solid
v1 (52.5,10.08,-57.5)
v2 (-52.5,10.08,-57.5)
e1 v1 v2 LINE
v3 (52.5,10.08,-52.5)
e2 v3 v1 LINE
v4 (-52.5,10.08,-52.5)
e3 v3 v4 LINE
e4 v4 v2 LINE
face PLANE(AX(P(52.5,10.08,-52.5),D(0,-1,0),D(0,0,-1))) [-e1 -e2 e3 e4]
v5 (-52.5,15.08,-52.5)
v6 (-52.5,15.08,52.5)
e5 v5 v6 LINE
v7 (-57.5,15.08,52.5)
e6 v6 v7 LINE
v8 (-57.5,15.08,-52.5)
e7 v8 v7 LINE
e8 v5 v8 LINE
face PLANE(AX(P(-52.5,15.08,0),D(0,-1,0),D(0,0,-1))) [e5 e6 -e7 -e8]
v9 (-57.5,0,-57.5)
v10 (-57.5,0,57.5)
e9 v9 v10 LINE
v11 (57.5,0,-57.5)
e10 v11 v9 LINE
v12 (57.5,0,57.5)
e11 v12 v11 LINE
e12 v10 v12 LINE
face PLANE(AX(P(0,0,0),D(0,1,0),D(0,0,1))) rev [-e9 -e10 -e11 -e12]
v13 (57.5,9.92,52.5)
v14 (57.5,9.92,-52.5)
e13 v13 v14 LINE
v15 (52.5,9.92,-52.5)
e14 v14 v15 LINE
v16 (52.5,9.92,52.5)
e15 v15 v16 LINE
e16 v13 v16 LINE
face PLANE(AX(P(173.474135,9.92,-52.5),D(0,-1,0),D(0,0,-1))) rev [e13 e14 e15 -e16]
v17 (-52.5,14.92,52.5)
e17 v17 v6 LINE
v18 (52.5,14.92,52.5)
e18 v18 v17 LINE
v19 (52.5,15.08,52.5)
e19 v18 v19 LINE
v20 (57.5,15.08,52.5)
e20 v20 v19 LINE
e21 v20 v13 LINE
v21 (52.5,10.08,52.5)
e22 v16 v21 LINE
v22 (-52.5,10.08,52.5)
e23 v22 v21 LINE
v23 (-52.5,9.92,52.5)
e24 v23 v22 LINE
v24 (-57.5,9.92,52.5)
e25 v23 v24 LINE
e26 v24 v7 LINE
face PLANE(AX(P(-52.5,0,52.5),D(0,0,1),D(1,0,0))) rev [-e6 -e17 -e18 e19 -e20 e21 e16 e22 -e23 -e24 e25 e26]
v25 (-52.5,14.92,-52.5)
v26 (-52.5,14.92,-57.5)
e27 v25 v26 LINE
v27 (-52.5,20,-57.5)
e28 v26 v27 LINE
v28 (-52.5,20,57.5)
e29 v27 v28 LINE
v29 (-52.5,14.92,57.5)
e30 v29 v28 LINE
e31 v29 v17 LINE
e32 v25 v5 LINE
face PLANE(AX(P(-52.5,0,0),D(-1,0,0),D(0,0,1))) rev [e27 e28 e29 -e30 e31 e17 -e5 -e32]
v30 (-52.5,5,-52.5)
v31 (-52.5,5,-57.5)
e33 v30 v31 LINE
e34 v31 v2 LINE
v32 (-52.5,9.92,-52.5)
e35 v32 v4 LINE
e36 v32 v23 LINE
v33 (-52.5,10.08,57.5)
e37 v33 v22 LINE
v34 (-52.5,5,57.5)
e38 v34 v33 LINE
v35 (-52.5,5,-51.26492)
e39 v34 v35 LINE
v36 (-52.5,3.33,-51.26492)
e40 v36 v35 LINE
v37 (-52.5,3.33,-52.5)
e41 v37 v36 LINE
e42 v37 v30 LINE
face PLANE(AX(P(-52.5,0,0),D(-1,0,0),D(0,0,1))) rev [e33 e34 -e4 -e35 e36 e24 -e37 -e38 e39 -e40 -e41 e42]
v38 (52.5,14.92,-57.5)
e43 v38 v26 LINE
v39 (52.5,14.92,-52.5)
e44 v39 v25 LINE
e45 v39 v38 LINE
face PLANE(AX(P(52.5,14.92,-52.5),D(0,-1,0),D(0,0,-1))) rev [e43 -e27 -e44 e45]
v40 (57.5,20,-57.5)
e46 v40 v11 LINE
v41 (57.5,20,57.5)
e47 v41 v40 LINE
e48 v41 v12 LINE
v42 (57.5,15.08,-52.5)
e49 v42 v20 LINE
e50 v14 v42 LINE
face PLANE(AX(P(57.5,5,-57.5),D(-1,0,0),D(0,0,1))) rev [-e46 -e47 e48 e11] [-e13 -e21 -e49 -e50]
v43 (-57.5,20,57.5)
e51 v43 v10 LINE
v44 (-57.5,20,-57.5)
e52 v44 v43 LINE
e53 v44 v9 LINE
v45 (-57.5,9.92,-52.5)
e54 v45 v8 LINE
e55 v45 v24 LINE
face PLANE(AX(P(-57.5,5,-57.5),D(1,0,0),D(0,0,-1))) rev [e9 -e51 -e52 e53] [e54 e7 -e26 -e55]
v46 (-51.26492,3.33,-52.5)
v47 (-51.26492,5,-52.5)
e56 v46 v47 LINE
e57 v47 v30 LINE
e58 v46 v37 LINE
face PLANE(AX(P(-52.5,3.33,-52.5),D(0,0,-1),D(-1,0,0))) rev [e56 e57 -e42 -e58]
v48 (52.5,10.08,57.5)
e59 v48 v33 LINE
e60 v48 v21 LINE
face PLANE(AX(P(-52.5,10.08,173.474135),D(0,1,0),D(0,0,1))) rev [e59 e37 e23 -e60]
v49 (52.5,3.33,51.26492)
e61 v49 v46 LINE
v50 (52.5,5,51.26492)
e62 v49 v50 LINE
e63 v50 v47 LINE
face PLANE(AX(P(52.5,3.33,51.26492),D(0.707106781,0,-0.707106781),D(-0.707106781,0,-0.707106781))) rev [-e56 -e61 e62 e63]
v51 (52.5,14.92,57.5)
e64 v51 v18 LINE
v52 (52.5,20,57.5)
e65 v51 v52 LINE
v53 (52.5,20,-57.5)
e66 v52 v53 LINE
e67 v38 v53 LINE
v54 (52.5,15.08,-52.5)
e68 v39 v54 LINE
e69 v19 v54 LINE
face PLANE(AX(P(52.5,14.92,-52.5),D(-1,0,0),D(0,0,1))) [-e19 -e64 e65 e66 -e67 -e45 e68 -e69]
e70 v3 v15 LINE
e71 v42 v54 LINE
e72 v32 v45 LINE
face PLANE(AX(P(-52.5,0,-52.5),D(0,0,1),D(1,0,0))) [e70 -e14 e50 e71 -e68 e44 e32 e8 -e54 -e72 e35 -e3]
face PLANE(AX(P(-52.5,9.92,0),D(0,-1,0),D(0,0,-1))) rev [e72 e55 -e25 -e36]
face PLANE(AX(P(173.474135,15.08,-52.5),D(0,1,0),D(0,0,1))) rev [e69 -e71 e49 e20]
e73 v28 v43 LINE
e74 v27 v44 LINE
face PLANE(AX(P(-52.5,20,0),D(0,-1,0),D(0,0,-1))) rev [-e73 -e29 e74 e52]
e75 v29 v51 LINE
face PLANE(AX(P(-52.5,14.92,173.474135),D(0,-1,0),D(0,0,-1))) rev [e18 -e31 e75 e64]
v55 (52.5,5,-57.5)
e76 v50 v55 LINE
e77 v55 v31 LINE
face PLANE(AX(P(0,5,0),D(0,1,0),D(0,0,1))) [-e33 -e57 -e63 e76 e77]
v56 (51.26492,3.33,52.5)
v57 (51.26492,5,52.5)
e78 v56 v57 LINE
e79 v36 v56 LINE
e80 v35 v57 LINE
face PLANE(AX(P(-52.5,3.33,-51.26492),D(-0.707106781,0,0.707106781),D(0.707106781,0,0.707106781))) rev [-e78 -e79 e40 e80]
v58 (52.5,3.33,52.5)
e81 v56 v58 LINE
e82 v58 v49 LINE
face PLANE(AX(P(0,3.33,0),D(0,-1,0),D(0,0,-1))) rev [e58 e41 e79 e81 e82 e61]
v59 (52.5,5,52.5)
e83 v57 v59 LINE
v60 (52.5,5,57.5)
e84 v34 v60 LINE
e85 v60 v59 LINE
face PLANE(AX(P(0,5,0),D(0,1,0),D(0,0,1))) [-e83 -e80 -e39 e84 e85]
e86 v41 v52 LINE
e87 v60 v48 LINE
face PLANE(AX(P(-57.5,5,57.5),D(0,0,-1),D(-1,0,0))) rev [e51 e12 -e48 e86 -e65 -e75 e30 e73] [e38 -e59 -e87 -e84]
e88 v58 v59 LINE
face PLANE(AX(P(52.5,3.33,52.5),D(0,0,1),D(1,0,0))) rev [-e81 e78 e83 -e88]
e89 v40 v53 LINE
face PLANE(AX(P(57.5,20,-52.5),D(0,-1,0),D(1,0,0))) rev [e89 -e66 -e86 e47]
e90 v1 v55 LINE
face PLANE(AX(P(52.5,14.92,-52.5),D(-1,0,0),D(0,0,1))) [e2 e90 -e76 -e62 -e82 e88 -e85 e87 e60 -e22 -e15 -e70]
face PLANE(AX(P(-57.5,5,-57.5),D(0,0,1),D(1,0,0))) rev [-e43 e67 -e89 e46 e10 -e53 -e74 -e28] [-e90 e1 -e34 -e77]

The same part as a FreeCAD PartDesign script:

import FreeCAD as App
import Part
import Sketcher
from FreeCAD import Vector
Q = App.Units.Quantity

doc = App.newDocument("Part")
params = doc.addObject("Spreadsheet::Sheet", "Params")
for row, (alias, value) in enumerate([
    ("sketch1_width", "115 mm"),
    ("pad1_length", "5 mm"),
    ("sketch2_width", "15 mm"),
    ("sketch2_height", "115 mm"),
    ("sketch2_height2", "105 mm"),
    ("sketch2_width2", "5.16 mm"),
    ("pad2_length", "5 mm"),
    ("sketch3_width", "5 mm"),
    ("sketch3_width2", "105 mm"),
    ("sketch3_height", "15 mm"),
    ("sketch3_height2", "5.08 mm"),
    ("pad3_length", "5 mm"),
    ("sketch4_width", "15 mm"),
    ("sketch4_height", "115 mm"),
    ("sketch4_height2", "105 mm"),
    ("sketch4_width2", "5.16 mm"),
    ("pad4_length", "5 mm"),
    ("sketch5_width", "5 mm"),
    ("sketch5_width2", "105 mm"),
    ("sketch5_height", "15 mm"),
    ("sketch5_height2", "5.08 mm"),
    ("pad5_length", "5 mm"),
    ("pocket1_length", "1.67 mm"),
], start=1):
    params.set(f"A{row}", alias)
    params.set(f"B{row}", "=" + value)
    params.setAlias(f"B{row}", alias)

body = doc.addObject("PartDesign::Body", "Body")

sketch1 = doc.addObject("Sketcher::SketchObject", "Sketch")
body.addObject(sketch1)
sketch1.AttachmentSupport = (doc.XZ_Plane, [""])
sketch1.MapMode = "FlatFace"
sketch1.addGeometry([
    Part.LineSegment(Vector(-58, -58, 0), Vector(-58, 58, 0)),
    Part.LineSegment(Vector(-58, 58, 0), Vector(58, 58, 0)),
    Part.LineSegment(Vector(58, 58, 0), Vector(58, -58, 0)),
    Part.LineSegment(Vector(58, -58, 0), Vector(-58, -58, 0)),
], False)
sketch1.addConstraint([
    Sketcher.Constraint("Coincident", 0, 2, 1, 1),
    Sketcher.Constraint("Coincident", 1, 2, 2, 1),
    Sketcher.Constraint("Coincident", 2, 2, 3, 1),
    Sketcher.Constraint("Coincident", 3, 2, 0, 1),
    Sketcher.Constraint("Vertical", 0),
    Sketcher.Constraint("Horizontal", 1),
    Sketcher.Constraint("Vertical", 2),
    Sketcher.Constraint("Horizontal", 3),
    Sketcher.Constraint("Symmetric", 0, 2, 2, 2, -1, 1),
    Sketcher.Constraint("Equal", 3, 0),
    Sketcher.Constraint("DistanceX", 1, 1, 1, 2, Q("115 mm")),
])
sketch1.setExpression("Constraints[10]", "Params.sketch1_width")
pad1 = doc.addObject("PartDesign::Pad", "Pad")
body.addObject(pad1)
pad1.Profile = sketch1
pad1.setExpression("Length", "Params.pad1_length")
pad1.Reversed = True

sketch2 = doc.addObject("Sketcher::SketchObject", "Sketch001")
body.addObject(sketch2)
sketch2.AttachmentSupport = (doc.YZ_Plane, [""])
sketch2.MapMode = "FlatFace"
sketch2.AttachmentOffset = App.Placement(Vector(0, 0, -57.5), App.Rotation())
sketch2.addGeometry([
    Part.LineSegment(Vector(20, -58, 0), Vector(5, -58, 0)),
    Part.LineSegment(Vector(5, -58, 0), Vector(5, 58, 0)),
    Part.LineSegment(Vector(5, 58, 0), Vector(20, 58, 0)),
    Part.LineSegment(Vector(20, 58, 0), Vector(20, -58, 0)),
    Part.LineSegment(Vector(10, 52, 0), Vector(10, -52, 0)),
    Part.LineSegment(Vector(10, -52, 0), Vector(15, -52, 0)),
    Part.LineSegment(Vector(15, -52, 0), Vector(15, 52, 0)),
    Part.LineSegment(Vector(15, 52, 0), Vector(10, 52, 0)),
], False)
sketch2.addConstraint([
    Sketcher.Constraint("Coincident", 0, 2, 1, 1),
    Sketcher.Constraint("Coincident", 1, 2, 2, 1),
    Sketcher.Constraint("Coincident", 2, 2, 3, 1),
    Sketcher.Constraint("Coincident", 3, 2, 0, 1),
    Sketcher.Constraint("Coincident", 4, 2, 5, 1),
    Sketcher.Constraint("Coincident", 5, 2, 6, 1),
    Sketcher.Constraint("Coincident", 6, 2, 7, 1),
    Sketcher.Constraint("Coincident", 7, 2, 4, 1),
    Sketcher.Constraint("Horizontal", 0),
    Sketcher.Constraint("Vertical", 1),
    Sketcher.Constraint("Horizontal", 2),
    Sketcher.Constraint("Vertical", 3),
    Sketcher.Constraint("Vertical", 4),
    Sketcher.Constraint("Horizontal", 5),
    Sketcher.Constraint("Vertical", 6),
    Sketcher.Constraint("Horizontal", 7),
    Sketcher.Constraint("DistanceX", 0, 2, 0, 1, Q("15 mm")),
    Sketcher.Constraint("DistanceY", 1, 1, 1, 2, Q("115 mm")),
    Sketcher.Constraint("DistanceY", 4, 2, 4, 1, Q("105 mm")),
    Sketcher.Constraint("DistanceX", -1, 1, 0, 2, Q("5 mm")),
    Sketcher.Constraint("DistanceY", 0, 2, 4, 2, Q("5 mm")),
    Sketcher.Constraint("DistanceX", 5, 1, 5, 2, Q("5.16 mm")),
    Sketcher.Constraint("DistanceY", 0, 2, -1, 1, Q("57.5 mm")),
    Sketcher.Constraint("DistanceX", -1, 1, 4, 2, Q("9.92 mm")),
])
sketch2.setExpression("Constraints[16]", "Params.sketch2_width")
sketch2.setExpression("Constraints[17]", "Params.sketch2_height")
sketch2.setExpression("Constraints[18]", "Params.sketch2_height2")
sketch2.setExpression("Constraints[21]", "Params.sketch2_width2")
pad2 = doc.addObject("PartDesign::Pad", "Pad001")
body.addObject(pad2)
pad2.Profile = sketch2
pad2.setExpression("Length", "Params.pad2_length")

sketch3 = doc.addObject("Sketcher::SketchObject", "Sketch002")
body.addObject(sketch3)
sketch3.AttachmentSupport = (doc.XY_Plane, [""])
sketch3.MapMode = "FlatFace"
sketch3.AttachmentOffset = App.Placement(Vector(0, 0, -52.5), App.Rotation())
sketch3.addGeometry([
    Part.LineSegment(Vector(58, 5, 0), Vector(52, 5, 0)),
    Part.LineSegment(Vector(52, 5, 0), Vector(52, 10, 0)),
    Part.LineSegment(Vector(52, 10, 0), Vector(-52, 10, 0)),
    Part.LineSegment(Vector(-52, 10, 0), Vector(-52, 5, 0)),
    Part.LineSegment(Vector(-52, 5, 0), Vector(-58, 5, 0)),
    Part.LineSegment(Vector(-58, 5, 0), Vector(-58, 20, 0)),
    Part.LineSegment(Vector(-58, 20, 0), Vector(-52, 20, 0)),
    Part.LineSegment(Vector(-52, 20, 0), Vector(-52, 15, 0)),
    Part.LineSegment(Vector(-52, 15, 0), Vector(52, 15, 0)),
    Part.LineSegment(Vector(52, 15, 0), Vector(52, 20, 0)),
    Part.LineSegment(Vector(52, 20, 0), Vector(58, 20, 0)),
    Part.LineSegment(Vector(58, 20, 0), Vector(58, 5, 0)),
], False)
sketch3.addConstraint([
    Sketcher.Constraint("Coincident", 0, 2, 1, 1),
    Sketcher.Constraint("Coincident", 1, 2, 2, 1),
    Sketcher.Constraint("Coincident", 2, 2, 3, 1),
    Sketcher.Constraint("Coincident", 3, 2, 4, 1),
    Sketcher.Constraint("Coincident", 4, 2, 5, 1),
    Sketcher.Constraint("Coincident", 5, 2, 6, 1),
    Sketcher.Constraint("Coincident", 6, 2, 7, 1),
    Sketcher.Constraint("Coincident", 7, 2, 8, 1),
    Sketcher.Constraint("Coincident", 8, 2, 9, 1),
    Sketcher.Constraint("Coincident", 9, 2, 10, 1),
    Sketcher.Constraint("Coincident", 10, 2, 11, 1),
    Sketcher.Constraint("Coincident", 11, 2, 0, 1),
    Sketcher.Constraint("Horizontal", 0),
    Sketcher.Constraint("Vertical", 1),
    Sketcher.Constraint("Horizontal", 2),
    Sketcher.Constraint("Vertical", 3),
    Sketcher.Constraint("Horizontal", 4),
    Sketcher.Constraint("Vertical", 5),
    Sketcher.Constraint("Horizontal", 6),
    Sketcher.Constraint("Vertical", 7),
    Sketcher.Constraint("Horizontal", 8),
    Sketcher.Constraint("Vertical", 9),
    Sketcher.Constraint("Horizontal", 10),
    Sketcher.Constraint("Vertical", 11),
    Sketcher.Constraint("Symmetric", 0, 2, 3, 2, -2),
    Sketcher.Constraint("Symmetric", 6, 2, 9, 2, -2),
    Sketcher.Constraint("Vertical", 3, 2, 6, 2),
    Sketcher.Constraint("Equal", 0, 4),
    Sketcher.Constraint("Equal", 3, 7),
    Sketcher.Constraint("DistanceX", 0, 2, 0, 1, Q("5 mm")),
    Sketcher.Constraint("DistanceX", 2, 2, 2, 1, Q("105 mm")),
    Sketcher.Constraint("DistanceY", 5, 1, 5, 2, Q("15 mm")),
    Sketcher.Constraint("DistanceY", -1, 1, 0, 2, Q("5 mm")),
    Sketcher.Constraint("DistanceY", 1, 1, 1, 2, Q("5.08 mm")),
])
sketch3.setExpression("Constraints[29]", "Params.sketch3_width")
sketch3.setExpression("Constraints[30]", "Params.sketch3_width2")
sketch3.setExpression("Constraints[31]", "Params.sketch3_height")
sketch3.setExpression("Constraints[33]", "Params.sketch3_height2")
pad3 = doc.addObject("PartDesign::Pad", "Pad002")
body.addObject(pad3)
pad3.Profile = sketch3
pad3.setExpression("Length", "Params.pad3_length")
pad3.Reversed = True

sketch4 = doc.addObject("Sketcher::SketchObject", "Sketch003")
body.addObject(sketch4)
sketch4.AttachmentSupport = (doc.YZ_Plane, [""])
sketch4.MapMode = "FlatFace"
sketch4.AttachmentOffset = App.Placement(Vector(0, 0, 52.5), App.Rotation())
sketch4.addGeometry([
    Part.LineSegment(Vector(20, -58, 0), Vector(5, -58, 0)),
    Part.LineSegment(Vector(5, -58, 0), Vector(5, 58, 0)),
    Part.LineSegment(Vector(5, 58, 0), Vector(20, 58, 0)),
    Part.LineSegment(Vector(20, 58, 0), Vector(20, -58, 0)),
    Part.LineSegment(Vector(10, 52, 0), Vector(10, -52, 0)),
    Part.LineSegment(Vector(10, -52, 0), Vector(15, -52, 0)),
    Part.LineSegment(Vector(15, -52, 0), Vector(15, 52, 0)),
    Part.LineSegment(Vector(15, 52, 0), Vector(10, 52, 0)),
], False)
sketch4.addConstraint([
    Sketcher.Constraint("Coincident", 0, 2, 1, 1),
    Sketcher.Constraint("Coincident", 1, 2, 2, 1),
    Sketcher.Constraint("Coincident", 2, 2, 3, 1),
    Sketcher.Constraint("Coincident", 3, 2, 0, 1),
    Sketcher.Constraint("Coincident", 4, 2, 5, 1),
    Sketcher.Constraint("Coincident", 5, 2, 6, 1),
    Sketcher.Constraint("Coincident", 6, 2, 7, 1),
    Sketcher.Constraint("Coincident", 7, 2, 4, 1),
    Sketcher.Constraint("Horizontal", 0),
    Sketcher.Constraint("Vertical", 1),
    Sketcher.Constraint("Horizontal", 2),
    Sketcher.Constraint("Vertical", 3),
    Sketcher.Constraint("Vertical", 4),
    Sketcher.Constraint("Horizontal", 5),
    Sketcher.Constraint("Vertical", 6),
    Sketcher.Constraint("Horizontal", 7),
    Sketcher.Constraint("DistanceX", 0, 2, 0, 1, Q("15 mm")),
    Sketcher.Constraint("DistanceY", 1, 1, 1, 2, Q("115 mm")),
    Sketcher.Constraint("DistanceY", 4, 2, 4, 1, Q("105 mm")),
    Sketcher.Constraint("DistanceX", -1, 1, 0, 2, Q("5 mm")),
    Sketcher.Constraint("DistanceY", 0, 2, 4, 2, Q("5 mm")),
    Sketcher.Constraint("DistanceX", 5, 1, 5, 2, Q("5.16 mm")),
    Sketcher.Constraint("DistanceY", 0, 2, -1, 1, Q("57.5 mm")),
    Sketcher.Constraint("DistanceX", -1, 1, 4, 2, Q("9.92 mm")),
])
sketch4.setExpression("Constraints[16]", "Params.sketch4_width")
sketch4.setExpression("Constraints[17]", "Params.sketch4_height")
sketch4.setExpression("Constraints[18]", "Params.sketch4_height2")
sketch4.setExpression("Constraints[21]", "Params.sketch4_width2")
pad4 = doc.addObject("PartDesign::Pad", "Pad003")
body.addObject(pad4)
pad4.Profile = sketch4
pad4.setExpression("Length", "Params.pad4_length")

sketch5 = doc.addObject("Sketcher::SketchObject", "Sketch004")
body.addObject(sketch5)
sketch5.AttachmentSupport = (doc.XY_Plane, [""])
sketch5.MapMode = "FlatFace"
sketch5.AttachmentOffset = App.Placement(Vector(0, 0, 52.5), App.Rotation())
sketch5.addGeometry([
    Part.LineSegment(Vector(58, 5, 0), Vector(52, 5, 0)),
    Part.LineSegment(Vector(52, 5, 0), Vector(52, 10, 0)),
    Part.LineSegment(Vector(52, 10, 0), Vector(-52, 10, 0)),
    Part.LineSegment(Vector(-52, 10, 0), Vector(-52, 5, 0)),
    Part.LineSegment(Vector(-52, 5, 0), Vector(-58, 5, 0)),
    Part.LineSegment(Vector(-58, 5, 0), Vector(-58, 20, 0)),
    Part.LineSegment(Vector(-58, 20, 0), Vector(-52, 20, 0)),
    Part.LineSegment(Vector(-52, 20, 0), Vector(-52, 15, 0)),
    Part.LineSegment(Vector(-52, 15, 0), Vector(52, 15, 0)),
    Part.LineSegment(Vector(52, 15, 0), Vector(52, 20, 0)),
    Part.LineSegment(Vector(52, 20, 0), Vector(58, 20, 0)),
    Part.LineSegment(Vector(58, 20, 0), Vector(58, 5, 0)),
], False)
sketch5.addConstraint([
    Sketcher.Constraint("Coincident", 0, 2, 1, 1),
    Sketcher.Constraint("Coincident", 1, 2, 2, 1),
    Sketcher.Constraint("Coincident", 2, 2, 3, 1),
    Sketcher.Constraint("Coincident", 3, 2, 4, 1),
    Sketcher.Constraint("Coincident", 4, 2, 5, 1),
    Sketcher.Constraint("Coincident", 5, 2, 6, 1),
    Sketcher.Constraint("Coincident", 6, 2, 7, 1),
    Sketcher.Constraint("Coincident", 7, 2, 8, 1),
    Sketcher.Constraint("Coincident", 8, 2, 9, 1),
    Sketcher.Constraint("Coincident", 9, 2, 10, 1),
    Sketcher.Constraint("Coincident", 10, 2, 11, 1),
    Sketcher.Constraint("Coincident", 11, 2, 0, 1),
    Sketcher.Constraint("Horizontal", 0),
    Sketcher.Constraint("Vertical", 1),
    Sketcher.Constraint("Horizontal", 2),
    Sketcher.Constraint("Vertical", 3),
    Sketcher.Constraint("Horizontal", 4),
    Sketcher.Constraint("Vertical", 5),
    Sketcher.Constraint("Horizontal", 6),
    Sketcher.Constraint("Vertical", 7),
    Sketcher.Constraint("Horizontal", 8),
    Sketcher.Constraint("Vertical", 9),
    Sketcher.Constraint("Horizontal", 10),
    Sketcher.Constraint("Vertical", 11),
    Sketcher.Constraint("Symmetric", 0, 2, 3, 2, -2),
    Sketcher.Constraint("Symmetric", 6, 2, 9, 2, -2),
    Sketcher.Constraint("Vertical", 3, 2, 6, 2),
    Sketcher.Constraint("Equal", 0, 4),
    Sketcher.Constraint("Equal", 3, 7),
    Sketcher.Constraint("DistanceX", 0, 2, 0, 1, Q("5 mm")),
    Sketcher.Constraint("DistanceX", 2, 2, 2, 1, Q("105 mm")),
    Sketcher.Constraint("DistanceY", 5, 1, 5, 2, Q("15 mm")),
    Sketcher.Constraint("DistanceY", -1, 1, 0, 2, Q("5 mm")),
    Sketcher.Constraint("DistanceY", 1, 1, 1, 2, Q("5.08 mm")),
])
sketch5.setExpression("Constraints[29]", "Params.sketch5_width")
sketch5.setExpression("Constraints[30]", "Params.sketch5_width2")
sketch5.setExpression("Constraints[31]", "Params.sketch5_height")
sketch5.setExpression("Constraints[33]", "Params.sketch5_height2")
pad5 = doc.addObject("PartDesign::Pad", "Pad004")
body.addObject(pad5)
pad5.Profile = sketch5
pad5.setExpression("Length", "Params.pad5_length")

sketch6 = doc.addObject("Sketcher::SketchObject", "Sketch005")
body.addObject(sketch6)
sketch6.AttachmentSupport = (doc.XZ_Plane, [""])
sketch6.MapMode = "FlatFace"
sketch6.AttachmentOffset = App.Placement(Vector(0, 0, -5), App.Rotation())
sketch6.addGeometry([
    Part.LineSegment(Vector(52.5, 51.3, 0), Vector(-51.3, -52.5, 0)),
    Part.LineSegment(Vector(-51.3, -52.5, 0), Vector(-52.5, -52.5, 0)),
    Part.LineSegment(Vector(-52.5, -52.5, 0), Vector(-52.5, -51.3, 0)),
    Part.LineSegment(Vector(-52.5, -51.3, 0), Vector(51.3, 52.5, 0)),
    Part.LineSegment(Vector(51.3, 52.5, 0), Vector(52.5, 52.5, 0)),
    Part.LineSegment(Vector(52.5, 52.5, 0), Vector(52.5, 51.3, 0)),
], False)
sketch6.addConstraint([
    Sketcher.Constraint("Coincident", 0, 2, 1, 1),
    Sketcher.Constraint("Coincident", 1, 2, 2, 1),
    Sketcher.Constraint("Coincident", 2, 2, 3, 1),
    Sketcher.Constraint("Coincident", 3, 2, 4, 1),
    Sketcher.Constraint("Coincident", 4, 2, 5, 1),
    Sketcher.Constraint("Coincident", 5, 2, 0, 1),
    Sketcher.Constraint("Horizontal", 1),
    Sketcher.Constraint("Vertical", 2),
    Sketcher.Constraint("Horizontal", 4),
    Sketcher.Constraint("Vertical", 5),
    Sketcher.Constraint("Symmetric", 0, 2, 3, 2, -1, 1),
    Sketcher.Constraint("Symmetric", 2, 2, 5, 2, -1, 1),
    Sketcher.Constraint("Equal", 4, 2),
    Sketcher.Constraint("Angle", 0, Q("-135 deg")),
    Sketcher.Constraint("DistanceY", 0, 2, 3, 2, Q("105 mm")),
    Sketcher.Constraint("DistanceX", 1, 2, 1, 1, Q("1.23508 mm")),
])
pocket1 = doc.addObject("PartDesign::Pocket", "Pocket")
body.addObject(pocket1)
pocket1.Profile = sketch6
pocket1.setExpression("Length", "Params.pocket1_length")
pocket1.Reversed = True

doc.recompute()
